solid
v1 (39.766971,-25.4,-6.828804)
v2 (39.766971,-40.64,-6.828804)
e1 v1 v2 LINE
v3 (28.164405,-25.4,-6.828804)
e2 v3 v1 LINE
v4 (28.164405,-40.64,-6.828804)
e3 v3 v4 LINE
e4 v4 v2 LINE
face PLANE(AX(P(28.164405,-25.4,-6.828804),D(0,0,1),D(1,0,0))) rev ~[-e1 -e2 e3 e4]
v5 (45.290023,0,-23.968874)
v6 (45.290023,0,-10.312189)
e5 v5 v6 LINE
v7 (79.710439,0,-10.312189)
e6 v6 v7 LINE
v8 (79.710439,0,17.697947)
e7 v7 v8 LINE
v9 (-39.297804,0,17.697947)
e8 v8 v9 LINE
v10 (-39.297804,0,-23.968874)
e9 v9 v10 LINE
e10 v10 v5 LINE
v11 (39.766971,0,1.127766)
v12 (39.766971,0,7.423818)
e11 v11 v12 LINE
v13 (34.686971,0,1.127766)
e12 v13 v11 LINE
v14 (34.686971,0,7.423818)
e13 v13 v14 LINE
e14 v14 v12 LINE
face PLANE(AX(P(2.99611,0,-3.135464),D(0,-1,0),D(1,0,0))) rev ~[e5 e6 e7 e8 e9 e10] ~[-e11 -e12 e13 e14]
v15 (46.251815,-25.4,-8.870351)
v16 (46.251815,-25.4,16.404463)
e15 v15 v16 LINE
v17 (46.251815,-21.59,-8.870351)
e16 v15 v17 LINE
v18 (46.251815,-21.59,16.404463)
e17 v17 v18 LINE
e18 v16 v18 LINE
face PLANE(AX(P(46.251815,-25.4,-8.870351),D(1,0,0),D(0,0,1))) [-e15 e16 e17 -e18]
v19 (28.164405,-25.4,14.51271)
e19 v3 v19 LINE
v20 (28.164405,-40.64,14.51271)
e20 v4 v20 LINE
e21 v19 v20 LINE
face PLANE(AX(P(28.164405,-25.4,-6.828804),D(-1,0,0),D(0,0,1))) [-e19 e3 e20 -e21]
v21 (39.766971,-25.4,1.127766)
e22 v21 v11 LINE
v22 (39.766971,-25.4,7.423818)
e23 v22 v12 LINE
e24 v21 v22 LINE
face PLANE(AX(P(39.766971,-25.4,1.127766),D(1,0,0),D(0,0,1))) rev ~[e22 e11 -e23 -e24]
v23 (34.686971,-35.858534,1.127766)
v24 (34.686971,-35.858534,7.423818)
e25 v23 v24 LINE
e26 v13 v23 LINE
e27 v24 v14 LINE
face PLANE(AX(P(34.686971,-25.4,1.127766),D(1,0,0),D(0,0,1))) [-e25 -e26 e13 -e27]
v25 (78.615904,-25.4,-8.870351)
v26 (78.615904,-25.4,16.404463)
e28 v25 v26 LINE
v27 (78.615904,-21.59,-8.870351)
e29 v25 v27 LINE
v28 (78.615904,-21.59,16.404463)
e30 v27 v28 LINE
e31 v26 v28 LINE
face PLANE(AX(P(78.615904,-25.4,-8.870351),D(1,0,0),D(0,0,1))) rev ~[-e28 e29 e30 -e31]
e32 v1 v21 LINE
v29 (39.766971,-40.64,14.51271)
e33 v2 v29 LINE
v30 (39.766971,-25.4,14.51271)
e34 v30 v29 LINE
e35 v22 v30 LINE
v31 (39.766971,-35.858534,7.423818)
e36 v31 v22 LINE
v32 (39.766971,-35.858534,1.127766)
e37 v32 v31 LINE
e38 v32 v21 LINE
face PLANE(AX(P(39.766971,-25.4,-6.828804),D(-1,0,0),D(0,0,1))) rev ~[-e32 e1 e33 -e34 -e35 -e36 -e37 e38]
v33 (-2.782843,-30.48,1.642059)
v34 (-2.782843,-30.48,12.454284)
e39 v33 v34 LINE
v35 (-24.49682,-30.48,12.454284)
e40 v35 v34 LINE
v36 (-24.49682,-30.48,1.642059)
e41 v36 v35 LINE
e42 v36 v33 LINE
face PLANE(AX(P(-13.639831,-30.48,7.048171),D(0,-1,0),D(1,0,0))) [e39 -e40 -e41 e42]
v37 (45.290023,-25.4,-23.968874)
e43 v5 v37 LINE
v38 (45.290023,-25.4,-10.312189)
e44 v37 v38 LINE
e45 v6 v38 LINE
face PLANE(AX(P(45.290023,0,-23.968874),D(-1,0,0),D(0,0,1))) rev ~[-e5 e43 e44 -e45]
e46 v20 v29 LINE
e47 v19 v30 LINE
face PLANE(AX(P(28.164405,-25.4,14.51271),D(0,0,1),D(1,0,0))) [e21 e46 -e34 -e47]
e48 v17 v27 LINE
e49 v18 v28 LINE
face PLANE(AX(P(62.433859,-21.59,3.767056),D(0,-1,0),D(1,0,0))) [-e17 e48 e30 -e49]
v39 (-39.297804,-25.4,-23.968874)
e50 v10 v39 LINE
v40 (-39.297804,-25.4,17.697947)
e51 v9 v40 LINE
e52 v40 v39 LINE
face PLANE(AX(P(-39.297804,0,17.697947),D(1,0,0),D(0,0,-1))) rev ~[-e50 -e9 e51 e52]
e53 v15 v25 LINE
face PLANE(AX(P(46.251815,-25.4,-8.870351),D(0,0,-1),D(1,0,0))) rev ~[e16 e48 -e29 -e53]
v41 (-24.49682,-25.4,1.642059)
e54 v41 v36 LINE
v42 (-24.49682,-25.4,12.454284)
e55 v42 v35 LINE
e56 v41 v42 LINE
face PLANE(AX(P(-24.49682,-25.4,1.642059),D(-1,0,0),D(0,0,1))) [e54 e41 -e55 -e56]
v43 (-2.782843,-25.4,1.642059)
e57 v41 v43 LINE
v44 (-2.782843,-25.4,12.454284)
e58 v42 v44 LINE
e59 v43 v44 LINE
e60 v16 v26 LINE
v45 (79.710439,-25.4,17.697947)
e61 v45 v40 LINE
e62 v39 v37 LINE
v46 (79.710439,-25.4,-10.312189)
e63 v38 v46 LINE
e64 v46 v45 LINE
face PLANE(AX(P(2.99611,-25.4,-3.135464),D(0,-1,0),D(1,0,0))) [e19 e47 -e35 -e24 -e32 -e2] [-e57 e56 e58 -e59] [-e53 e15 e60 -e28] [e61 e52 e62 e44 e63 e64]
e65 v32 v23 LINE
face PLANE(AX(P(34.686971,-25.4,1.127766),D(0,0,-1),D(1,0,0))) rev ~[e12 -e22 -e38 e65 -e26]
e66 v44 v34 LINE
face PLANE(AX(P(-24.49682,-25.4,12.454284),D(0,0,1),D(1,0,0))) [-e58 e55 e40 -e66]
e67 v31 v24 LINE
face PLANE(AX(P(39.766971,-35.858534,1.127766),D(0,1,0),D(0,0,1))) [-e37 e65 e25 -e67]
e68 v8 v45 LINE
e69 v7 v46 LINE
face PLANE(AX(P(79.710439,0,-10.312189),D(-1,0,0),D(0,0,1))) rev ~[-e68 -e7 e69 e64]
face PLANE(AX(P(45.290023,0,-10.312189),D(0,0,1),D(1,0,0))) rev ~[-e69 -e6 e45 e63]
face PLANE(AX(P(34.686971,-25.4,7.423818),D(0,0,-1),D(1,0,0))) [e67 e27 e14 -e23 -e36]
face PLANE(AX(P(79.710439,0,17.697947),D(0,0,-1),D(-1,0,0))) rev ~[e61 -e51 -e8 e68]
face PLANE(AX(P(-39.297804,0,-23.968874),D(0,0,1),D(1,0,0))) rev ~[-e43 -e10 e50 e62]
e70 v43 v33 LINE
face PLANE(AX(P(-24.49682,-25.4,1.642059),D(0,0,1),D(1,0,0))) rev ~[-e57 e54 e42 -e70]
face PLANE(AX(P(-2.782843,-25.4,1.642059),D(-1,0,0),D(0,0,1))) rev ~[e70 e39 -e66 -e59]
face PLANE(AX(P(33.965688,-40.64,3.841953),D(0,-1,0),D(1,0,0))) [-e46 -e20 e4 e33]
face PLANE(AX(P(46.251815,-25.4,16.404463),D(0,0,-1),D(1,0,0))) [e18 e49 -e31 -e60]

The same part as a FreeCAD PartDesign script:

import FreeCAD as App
import Part
import Sketcher
Q = App.Units.Quantity


def add_polygon(sketch, points):
    """Adds a closed chain of lines whose ends are joined by coincident constraints."""
    first, n = sketch.GeometryCount, len(points)
    for a, b in zip(points, points[1:] + points[:1]):
        sketch.addGeometry(Part.LineSegment(App.Vector(*a, 0), App.Vector(*b, 0)), False)
    for i in range(n):
        sketch.addConstraint(Sketcher.Constraint("Coincident", first + i, 2, first + (i + 1) % n, 1))

doc = App.newDocument("Part")
body = doc.addObject("PartDesign::Body", "Body")

# Sketch on XZ plane
sketch1 = body.newObject("Sketcher::SketchObject", "Sketch")
sketch1.AttachmentSupport = (doc.getObject("XZ_Plane"), [""])
sketch1.MapMode = "FlatFace"
add_polygon(sketch1, [(-39, 18), (-39, -24), (45, -24), (45, -10), (80, -10), (80, 18)])  # lines 0-5
sketch1.addConstraint(Sketcher.Constraint("Vertical", 0))
sketch1.addConstraint(Sketcher.Constraint("Horizontal", 1))
sketch1.addConstraint(Sketcher.Constraint("Vertical", 2))
sketch1.addConstraint(Sketcher.Constraint("Horizontal", 3))
sketch1.addConstraint(Sketcher.Constraint("Vertical", 4))
sketch1.addConstraint(Sketcher.Constraint("Horizontal", 5))
sketch1.addConstraint(Sketcher.Constraint("DistanceY", 0, 2, 0, 1, 41.666821))
sketch1.addConstraint(Sketcher.Constraint("DistanceX", 1, 1, 1, 2, 84.587827))
sketch1.addConstraint(Sketcher.Constraint("DistanceX", 3, 1, 3, 2, 34.420416))
sketch1.addConstraint(Sketcher.Constraint("DistanceY", 2, 1, 2, 2, 13.656685))
sketch1.addConstraint(Sketcher.Constraint("DistanceY", 2, 2, -1, 1, 10.312189))
sketch1.addConstraint(Sketcher.Constraint("DistanceX", -1, 1, 3, 2, 79.710439))
pad1 = body.newObject("PartDesign::Pad", "Pad")
pad1.Profile = sketch1
pad1.Length = Q("1 in")

# Sketch on XZ plane
sketch2 = body.newObject("Sketcher::SketchObject", "Sketch001")
sketch2.AttachmentSupport = (doc.getObject("XZ_Plane"), [""])
sketch2.MapMode = "FlatFace"
sketch2.AttachmentOffset = App.Placement(App.Vector(0, 0, 1 * 25.4), App.Rotation())
add_polygon(sketch2, [(-24, 12), (-24, 2), (-3, 2), (-3, 12)])  # lines 0-3
sketch2.addConstraint(Sketcher.Constraint("Vertical", 0))
sketch2.addConstraint(Sketcher.Constraint("Horizontal", 1))
sketch2.addConstraint(Sketcher.Constraint("Vertical", 2))
sketch2.addConstraint(Sketcher.Constraint("Horizontal", 3))
sketch2.addConstraint(Sketcher.Constraint("DistanceX", 1, 1, 1, 2, 21.713977))
sketch2.addConstraint(Sketcher.Constraint("DistanceY", 0, 2, 0, 1, 10.812225))
sketch2.addConstraint(Sketcher.Constraint("DistanceX", 0, 2, -1, 1, 24.49682))
sketch2.addConstraint(Sketcher.Constraint("DistanceY", -1, 1, 0, 2, 1.642059))
pad2 = body.newObject("PartDesign::Pad", "Pad001")
pad2.Profile = sketch2
pad2.Length = Q("0.2 in")

# Sketch on XZ plane
sketch3 = body.newObject("Sketcher::SketchObject", "Sketch002")
sketch3.AttachmentSupport = (doc.getObject("XZ_Plane"), [""])
sketch3.MapMode = "FlatFace"
sketch3.AttachmentOffset = App.Placement(App.Vector(0, 0, 1 * 25.4), App.Rotation())
add_polygon(sketch3, [(46, 16), (46, -9), (79, -9), (79, 16)])  # lines 0-3
sketch3.addConstraint(Sketcher.Constraint("Vertical", 0))
sketch3.addConstraint(Sketcher.Constraint("Horizontal", 1))
sketch3.addConstraint(Sketcher.Constraint("Vertical", 2))
sketch3.addConstraint(Sketcher.Constraint("Horizontal", 3))
sketch3.addConstraint(Sketcher.Constraint("DistanceX", 1, 1, 1, 2, 32.364089))
sketch3.addConstraint(Sketcher.Constraint("DistanceY", 0, 2, 0, 1, 25.274814))
sketch3.addConstraint(Sketcher.Constraint("DistanceY", 0, 2, -1, 1, 8.870351))
sketch3.addConstraint(Sketcher.Constraint("DistanceX", -1, 1, 0, 2, 46.251815))
pocket1 = body.newObject("PartDesign::Pocket", "Pocket")
pocket1.Profile = sketch3
pocket1.Length = Q("0.15 in")

# Sketch on XZ plane
sketch4 = body.newObject("Sketcher::SketchObject", "Sketch003")
sketch4.AttachmentSupport = (doc.getObject("XZ_Plane"), [""])
sketch4.MapMode = "FlatFace"
sketch4.AttachmentOffset = App.Placement(App.Vector(0, 0, 1 * 25.4), App.Rotation())
add_polygon(sketch4, [(28, 15), (28, -7), (40, -7), (40, 15)])  # lines 0-3
sketch4.addConstraint(Sketcher.Constraint("Vertical", 0))
sketch4.addConstraint(Sketcher.Constraint("Horizontal", 1))
sketch4.addConstraint(Sketcher.Constraint("Vertical", 2))
sketch4.addConstraint(Sketcher.Constraint("Horizontal", 3))
sketch4.addConstraint(Sketcher.Constraint("DistanceX", 1, 1, 1, 2, 11.602566))
sketch4.addConstraint(Sketcher.Constraint("DistanceY", 0, 2, 0, 1, 21.341514))
sketch4.addConstraint(Sketcher.Constraint("DistanceX", -1, 1, 1, 2, 39.766971))
sketch4.addConstraint(Sketcher.Constraint("DistanceY", -1, 1, 2, 2, 14.51271))
pad3 = body.newObject("PartDesign::Pad", "Pad002")
pad3.Profile = sketch4
pad3.Length = Q("0.6 in")

# Sketch on YZ plane
sketch5 = body.newObject("Sketcher::SketchObject", "Sketch004")
sketch5.AttachmentSupport = (doc.getObject("YZ_Plane"), [""])
sketch5.MapMode = "FlatFace"
sketch5.AttachmentOffset = App.Placement(App.Vector(0, 0, 39.766971), App.Rotation())
add_polygon(sketch5, [(-36, 7), (-36, 1), (-25, 1), (-25, 7)])  # lines 0-3
sketch5.addConstraint(Sketcher.Constraint("Vertical", 0))
sketch5.addConstraint(Sketcher.Constraint("Horizontal", 1))
sketch5.addConstraint(Sketcher.Constraint("Vertical", 2))
sketch5.addConstraint(Sketcher.Constraint("Horizontal", 3))
sketch5.addConstraint(Sketcher.Constraint("DistanceX", 1, 2, -1, 1, Q("1 in")))
sketch5.addConstraint(Sketcher.Constraint("DistanceY", 0, 2, 0, 1, 6.296051))
sketch5.addConstraint(Sketcher.Constraint("DistanceX", 1, 1, 1, 2, 10.458534))
sketch5.addConstraint(Sketcher.Constraint("DistanceY", -1, 1, 0, 2, 1.127766))
pocket2 = body.newObject("PartDesign::Pocket", "Pocket001")
pocket2.Profile = sketch5
pocket2.Length = Q("0.2 in")

# Sketch on XZ plane
sketch6 = body.newObject("Sketcher::SketchObject", "Sketch005")
sketch6.AttachmentSupport = (doc.getObject("XZ_Plane"), [""])
sketch6.MapMode = "FlatFace"
sketch6.AttachmentOffset = App.Placement(App.Vector(0, 0, 1 * 25.4), App.Rotation())
add_polygon(sketch6, [(35, 7), (35, 1), (40, 1), (40, 7)])  # lines 0-3
sketch6.addConstraint(Sketcher.Constraint("Vertical", 0))
sketch6.addConstraint(Sketcher.Constraint("Horizontal", 1))
sketch6.addConstraint(Sketcher.Constraint("Vertical", 2))
sketch6.addConstraint(Sketcher.Constraint("Horizontal", 3))
sketch6.addConstraint(Sketcher.Constraint("DistanceX", 1, 1, 1, 2, Q("0.2 in")))
sketch6.addConstraint(Sketcher.Constraint("DistanceY", 0, 2, 0, 1, 6.296051))
sketch6.addConstraint(Sketcher.Constraint("DistanceX", -1, 1, 0, 2, 34.686971))
sketch6.addConstraint(Sketcher.Constraint("DistanceY", -1, 1, 0, 2, 1.127766))
pocket3 = body.newObject("PartDesign::Pocket", "Pocket002")
pocket3.Profile = sketch6
pocket3.Length = Q("1 in")

doc.recompute()
